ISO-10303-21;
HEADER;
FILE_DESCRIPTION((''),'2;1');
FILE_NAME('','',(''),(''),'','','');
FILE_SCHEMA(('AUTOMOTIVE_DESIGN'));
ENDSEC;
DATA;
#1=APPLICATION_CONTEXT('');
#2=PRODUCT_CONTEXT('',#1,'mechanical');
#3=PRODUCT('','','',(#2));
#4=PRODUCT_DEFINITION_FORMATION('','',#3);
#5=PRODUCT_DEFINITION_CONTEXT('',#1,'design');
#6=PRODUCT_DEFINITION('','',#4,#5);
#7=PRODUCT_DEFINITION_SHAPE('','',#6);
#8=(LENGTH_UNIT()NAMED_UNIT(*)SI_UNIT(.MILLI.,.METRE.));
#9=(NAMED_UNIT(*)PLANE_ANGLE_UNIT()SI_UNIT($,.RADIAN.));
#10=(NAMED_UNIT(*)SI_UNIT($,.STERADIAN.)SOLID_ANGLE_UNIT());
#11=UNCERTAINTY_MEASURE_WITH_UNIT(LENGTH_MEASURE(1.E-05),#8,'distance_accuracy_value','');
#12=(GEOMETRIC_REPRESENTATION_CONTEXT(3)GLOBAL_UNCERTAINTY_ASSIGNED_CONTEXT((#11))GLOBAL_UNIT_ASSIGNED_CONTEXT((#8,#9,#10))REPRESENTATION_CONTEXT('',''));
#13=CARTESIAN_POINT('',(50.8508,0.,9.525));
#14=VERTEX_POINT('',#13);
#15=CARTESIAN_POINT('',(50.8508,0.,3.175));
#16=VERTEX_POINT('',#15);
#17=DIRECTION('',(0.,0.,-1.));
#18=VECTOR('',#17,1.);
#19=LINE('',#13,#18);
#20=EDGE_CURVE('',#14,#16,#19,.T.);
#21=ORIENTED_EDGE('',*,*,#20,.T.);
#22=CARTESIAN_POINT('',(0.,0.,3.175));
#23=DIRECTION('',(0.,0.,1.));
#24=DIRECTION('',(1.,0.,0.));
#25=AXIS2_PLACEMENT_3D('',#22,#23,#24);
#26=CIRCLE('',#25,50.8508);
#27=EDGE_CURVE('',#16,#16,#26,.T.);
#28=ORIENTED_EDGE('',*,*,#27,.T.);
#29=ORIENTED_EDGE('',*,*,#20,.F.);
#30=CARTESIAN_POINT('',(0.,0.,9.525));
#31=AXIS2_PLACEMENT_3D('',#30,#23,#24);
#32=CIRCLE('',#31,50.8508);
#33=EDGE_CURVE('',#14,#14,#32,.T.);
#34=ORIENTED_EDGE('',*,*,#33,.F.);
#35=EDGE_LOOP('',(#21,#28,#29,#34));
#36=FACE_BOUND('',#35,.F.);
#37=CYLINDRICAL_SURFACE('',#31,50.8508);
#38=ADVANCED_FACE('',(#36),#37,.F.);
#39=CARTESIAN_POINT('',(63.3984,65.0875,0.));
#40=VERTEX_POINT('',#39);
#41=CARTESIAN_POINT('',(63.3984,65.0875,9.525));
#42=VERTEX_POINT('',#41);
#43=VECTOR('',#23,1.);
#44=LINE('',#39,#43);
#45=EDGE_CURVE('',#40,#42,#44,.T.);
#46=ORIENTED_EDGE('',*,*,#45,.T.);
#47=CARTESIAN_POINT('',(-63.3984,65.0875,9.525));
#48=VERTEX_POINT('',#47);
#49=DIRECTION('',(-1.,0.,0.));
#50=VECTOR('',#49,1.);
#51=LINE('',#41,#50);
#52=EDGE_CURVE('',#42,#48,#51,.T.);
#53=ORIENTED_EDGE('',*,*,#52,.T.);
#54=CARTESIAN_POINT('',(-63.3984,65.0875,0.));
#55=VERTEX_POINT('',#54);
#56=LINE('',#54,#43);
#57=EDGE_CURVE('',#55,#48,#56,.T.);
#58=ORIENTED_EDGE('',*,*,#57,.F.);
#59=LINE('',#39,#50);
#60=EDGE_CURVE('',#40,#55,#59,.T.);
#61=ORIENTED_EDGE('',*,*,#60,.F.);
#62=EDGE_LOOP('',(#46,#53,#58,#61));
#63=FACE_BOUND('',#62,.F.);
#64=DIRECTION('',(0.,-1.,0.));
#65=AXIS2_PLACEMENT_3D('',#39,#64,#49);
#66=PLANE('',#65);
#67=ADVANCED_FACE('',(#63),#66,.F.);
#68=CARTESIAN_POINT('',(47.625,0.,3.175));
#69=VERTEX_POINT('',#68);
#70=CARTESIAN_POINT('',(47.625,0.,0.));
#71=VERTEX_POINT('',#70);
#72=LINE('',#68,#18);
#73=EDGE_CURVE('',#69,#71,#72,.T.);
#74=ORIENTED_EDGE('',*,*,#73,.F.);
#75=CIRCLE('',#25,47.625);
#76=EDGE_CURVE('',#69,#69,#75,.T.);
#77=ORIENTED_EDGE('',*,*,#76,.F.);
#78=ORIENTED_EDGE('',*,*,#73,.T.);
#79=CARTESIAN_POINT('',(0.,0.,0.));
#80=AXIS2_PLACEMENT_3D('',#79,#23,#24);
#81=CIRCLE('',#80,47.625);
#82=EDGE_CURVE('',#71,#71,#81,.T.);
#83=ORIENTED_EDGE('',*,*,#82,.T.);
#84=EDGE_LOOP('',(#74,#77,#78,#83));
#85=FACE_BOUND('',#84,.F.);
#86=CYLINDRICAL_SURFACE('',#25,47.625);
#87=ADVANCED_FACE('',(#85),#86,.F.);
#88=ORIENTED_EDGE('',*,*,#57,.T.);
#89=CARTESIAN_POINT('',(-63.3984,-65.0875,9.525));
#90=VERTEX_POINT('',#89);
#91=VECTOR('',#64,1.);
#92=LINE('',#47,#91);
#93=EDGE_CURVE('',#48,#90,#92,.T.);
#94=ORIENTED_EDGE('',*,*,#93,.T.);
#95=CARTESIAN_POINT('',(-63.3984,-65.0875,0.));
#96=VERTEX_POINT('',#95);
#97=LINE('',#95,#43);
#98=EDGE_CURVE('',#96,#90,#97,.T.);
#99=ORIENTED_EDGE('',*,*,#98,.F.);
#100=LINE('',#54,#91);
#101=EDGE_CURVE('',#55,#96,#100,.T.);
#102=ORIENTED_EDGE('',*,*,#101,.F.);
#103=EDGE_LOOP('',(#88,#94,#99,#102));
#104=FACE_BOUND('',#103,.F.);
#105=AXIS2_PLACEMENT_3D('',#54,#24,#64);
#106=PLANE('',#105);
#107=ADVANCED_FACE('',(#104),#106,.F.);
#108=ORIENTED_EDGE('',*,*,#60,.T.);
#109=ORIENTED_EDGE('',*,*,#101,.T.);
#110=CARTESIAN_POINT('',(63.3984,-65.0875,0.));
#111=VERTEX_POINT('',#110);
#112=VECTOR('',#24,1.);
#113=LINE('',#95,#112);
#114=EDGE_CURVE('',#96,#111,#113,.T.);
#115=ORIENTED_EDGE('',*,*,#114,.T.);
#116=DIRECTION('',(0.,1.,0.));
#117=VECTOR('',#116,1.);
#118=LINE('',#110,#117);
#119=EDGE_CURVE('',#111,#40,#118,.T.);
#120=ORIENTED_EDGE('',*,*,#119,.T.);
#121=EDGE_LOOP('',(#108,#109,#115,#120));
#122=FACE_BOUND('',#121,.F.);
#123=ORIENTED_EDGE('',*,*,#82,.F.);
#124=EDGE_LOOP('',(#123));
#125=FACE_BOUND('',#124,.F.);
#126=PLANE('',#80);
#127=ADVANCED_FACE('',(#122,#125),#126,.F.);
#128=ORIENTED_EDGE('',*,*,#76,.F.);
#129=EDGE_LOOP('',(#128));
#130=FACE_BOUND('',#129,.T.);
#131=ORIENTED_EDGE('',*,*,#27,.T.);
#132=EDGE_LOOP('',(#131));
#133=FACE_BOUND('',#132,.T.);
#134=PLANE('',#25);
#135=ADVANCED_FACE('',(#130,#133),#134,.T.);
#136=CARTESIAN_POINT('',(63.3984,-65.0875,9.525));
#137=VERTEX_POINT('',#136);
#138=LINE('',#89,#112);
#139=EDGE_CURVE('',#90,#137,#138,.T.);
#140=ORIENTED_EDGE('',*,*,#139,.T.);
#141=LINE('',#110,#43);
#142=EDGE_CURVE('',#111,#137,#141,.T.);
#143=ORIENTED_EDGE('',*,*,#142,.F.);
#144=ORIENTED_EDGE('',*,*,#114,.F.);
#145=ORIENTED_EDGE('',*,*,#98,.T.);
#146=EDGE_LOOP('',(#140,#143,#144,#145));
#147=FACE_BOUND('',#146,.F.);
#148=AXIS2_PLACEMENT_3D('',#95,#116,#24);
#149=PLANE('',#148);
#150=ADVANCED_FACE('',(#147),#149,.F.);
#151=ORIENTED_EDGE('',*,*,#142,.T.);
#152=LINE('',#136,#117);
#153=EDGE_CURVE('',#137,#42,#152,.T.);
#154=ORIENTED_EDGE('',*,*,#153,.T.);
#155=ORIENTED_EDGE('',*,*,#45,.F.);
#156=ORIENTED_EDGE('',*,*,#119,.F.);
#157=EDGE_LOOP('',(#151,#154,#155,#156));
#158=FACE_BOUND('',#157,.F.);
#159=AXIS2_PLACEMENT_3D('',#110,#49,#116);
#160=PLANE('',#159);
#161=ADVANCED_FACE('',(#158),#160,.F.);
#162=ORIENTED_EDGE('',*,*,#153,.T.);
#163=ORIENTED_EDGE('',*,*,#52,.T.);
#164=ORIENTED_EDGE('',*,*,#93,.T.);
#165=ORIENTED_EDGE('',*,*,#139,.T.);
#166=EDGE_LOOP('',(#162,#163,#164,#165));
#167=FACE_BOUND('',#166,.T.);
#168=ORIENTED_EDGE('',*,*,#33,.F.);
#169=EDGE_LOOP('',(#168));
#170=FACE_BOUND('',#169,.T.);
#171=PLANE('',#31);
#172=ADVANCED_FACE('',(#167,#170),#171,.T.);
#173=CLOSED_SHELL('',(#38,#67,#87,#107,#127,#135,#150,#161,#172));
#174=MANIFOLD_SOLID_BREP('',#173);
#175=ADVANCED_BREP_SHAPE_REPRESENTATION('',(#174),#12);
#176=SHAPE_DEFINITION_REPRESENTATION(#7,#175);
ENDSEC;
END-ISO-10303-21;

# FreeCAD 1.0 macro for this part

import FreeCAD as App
import Part
import Sketcher
Q = App.Units.Quantity


def add_polygon(sketch, points):
    """Adds a closed chain of lines whose ends are joined by coincident constraints."""
    first, n = sketch.GeometryCount, len(points)
    for a, b in zip(points, points[1:] + points[:1]):
        sketch.addGeometry(Part.LineSegment(App.Vector(*a, 0), App.Vector(*b, 0)), False)
    for i in range(n):
        sketch.addConstraint(Sketcher.Constraint("Coincident", first + i, 2, first + (i + 1) % n, 1))

doc = App.newDocument("Part")
body = doc.addObject("PartDesign::Body", "Body")

# Sketch on XY plane
sketch1 = body.newObject("Sketcher::SketchObject", "Sketch")
sketch1.AttachmentSupport = (doc.getObject("XY_Plane"), [""])
sketch1.MapMode = "FlatFace"
add_polygon(sketch1, [(-63.3984, 65.0875), (-63.3984, -65.0875), (63.3984, -65.0875), (63.3984, 65.0875)])  # lines 0-3
sketch1.addConstraint([
    Sketcher.Constraint("Vertical", 0),
    Sketcher.Constraint("Horizontal", 1),
    Sketcher.Constraint("Vertical", 2),
    Sketcher.Constraint("Horizontal", 3),
    Sketcher.Constraint("Symmetric", 0, 2, 2, 2, -1, 1),
    Sketcher.Constraint("DistanceX", 1, 1, 1, 2, Q("4.992 in")),
    Sketcher.Constraint("DistanceY", 0, 2, 0, 1, Q("5.125 in")),
])
pad1 = body.newObject("PartDesign::Pad", "Pad")
pad1.Profile = sketch1
pad1.Length = Q("0.375 in")

# Sketch on XY plane
sketch2 = body.newObject("Sketcher::SketchObject", "Sketch001")
sketch2.AttachmentSupport = (doc.getObject("XY_Plane"), [""])
sketch2.MapMode = "FlatFace"
sketch2.AttachmentOffset = App.Placement(App.Vector(0, 0, 0.375 * 25.4), App.Rotation())
sketch2.addGeometry(Part.Circle(App.Vector(0, 0, 0), App.Vector(0, 0, 1), 50.8508), False)
sketch2.addConstraint([
    Sketcher.Constraint("Coincident", 0, 3, -1, 1),
    Sketcher.Constraint("Diameter", 0, Q("4.004 in")),
])
pocket1 = body.newObject("PartDesign::Pocket", "Pocket")
pocket1.Profile = sketch2
pocket1.Length = Q("0.25 in")

# Sketch on XY plane
sketch3 = body.newObject("Sketcher::SketchObject", "Sketch002")
sketch3.AttachmentSupport = (doc.getObject("XY_Plane"), [""])
sketch3.MapMode = "FlatFace"
sketch3.AttachmentOffset = App.Placement(App.Vector(0, 0, 0.125 * 25.4), App.Rotation())
sketch3.addGeometry(Part.Circle(App.Vector(0, 0, 0), App.Vector(0, 0, 1), 47.625), False)
sketch3.addConstraint([
    Sketcher.Constraint("Coincident", 0, 3, -1, 1),
    Sketcher.Constraint("Diameter", 0, Q("3.75 in")),
])
pocket2 = body.newObject("PartDesign::Pocket", "Pocket001")
pocket2.Profile = sketch3
pocket2.Type = "ThroughAll"
pocket2.Midplane = True

doc.recompute()
